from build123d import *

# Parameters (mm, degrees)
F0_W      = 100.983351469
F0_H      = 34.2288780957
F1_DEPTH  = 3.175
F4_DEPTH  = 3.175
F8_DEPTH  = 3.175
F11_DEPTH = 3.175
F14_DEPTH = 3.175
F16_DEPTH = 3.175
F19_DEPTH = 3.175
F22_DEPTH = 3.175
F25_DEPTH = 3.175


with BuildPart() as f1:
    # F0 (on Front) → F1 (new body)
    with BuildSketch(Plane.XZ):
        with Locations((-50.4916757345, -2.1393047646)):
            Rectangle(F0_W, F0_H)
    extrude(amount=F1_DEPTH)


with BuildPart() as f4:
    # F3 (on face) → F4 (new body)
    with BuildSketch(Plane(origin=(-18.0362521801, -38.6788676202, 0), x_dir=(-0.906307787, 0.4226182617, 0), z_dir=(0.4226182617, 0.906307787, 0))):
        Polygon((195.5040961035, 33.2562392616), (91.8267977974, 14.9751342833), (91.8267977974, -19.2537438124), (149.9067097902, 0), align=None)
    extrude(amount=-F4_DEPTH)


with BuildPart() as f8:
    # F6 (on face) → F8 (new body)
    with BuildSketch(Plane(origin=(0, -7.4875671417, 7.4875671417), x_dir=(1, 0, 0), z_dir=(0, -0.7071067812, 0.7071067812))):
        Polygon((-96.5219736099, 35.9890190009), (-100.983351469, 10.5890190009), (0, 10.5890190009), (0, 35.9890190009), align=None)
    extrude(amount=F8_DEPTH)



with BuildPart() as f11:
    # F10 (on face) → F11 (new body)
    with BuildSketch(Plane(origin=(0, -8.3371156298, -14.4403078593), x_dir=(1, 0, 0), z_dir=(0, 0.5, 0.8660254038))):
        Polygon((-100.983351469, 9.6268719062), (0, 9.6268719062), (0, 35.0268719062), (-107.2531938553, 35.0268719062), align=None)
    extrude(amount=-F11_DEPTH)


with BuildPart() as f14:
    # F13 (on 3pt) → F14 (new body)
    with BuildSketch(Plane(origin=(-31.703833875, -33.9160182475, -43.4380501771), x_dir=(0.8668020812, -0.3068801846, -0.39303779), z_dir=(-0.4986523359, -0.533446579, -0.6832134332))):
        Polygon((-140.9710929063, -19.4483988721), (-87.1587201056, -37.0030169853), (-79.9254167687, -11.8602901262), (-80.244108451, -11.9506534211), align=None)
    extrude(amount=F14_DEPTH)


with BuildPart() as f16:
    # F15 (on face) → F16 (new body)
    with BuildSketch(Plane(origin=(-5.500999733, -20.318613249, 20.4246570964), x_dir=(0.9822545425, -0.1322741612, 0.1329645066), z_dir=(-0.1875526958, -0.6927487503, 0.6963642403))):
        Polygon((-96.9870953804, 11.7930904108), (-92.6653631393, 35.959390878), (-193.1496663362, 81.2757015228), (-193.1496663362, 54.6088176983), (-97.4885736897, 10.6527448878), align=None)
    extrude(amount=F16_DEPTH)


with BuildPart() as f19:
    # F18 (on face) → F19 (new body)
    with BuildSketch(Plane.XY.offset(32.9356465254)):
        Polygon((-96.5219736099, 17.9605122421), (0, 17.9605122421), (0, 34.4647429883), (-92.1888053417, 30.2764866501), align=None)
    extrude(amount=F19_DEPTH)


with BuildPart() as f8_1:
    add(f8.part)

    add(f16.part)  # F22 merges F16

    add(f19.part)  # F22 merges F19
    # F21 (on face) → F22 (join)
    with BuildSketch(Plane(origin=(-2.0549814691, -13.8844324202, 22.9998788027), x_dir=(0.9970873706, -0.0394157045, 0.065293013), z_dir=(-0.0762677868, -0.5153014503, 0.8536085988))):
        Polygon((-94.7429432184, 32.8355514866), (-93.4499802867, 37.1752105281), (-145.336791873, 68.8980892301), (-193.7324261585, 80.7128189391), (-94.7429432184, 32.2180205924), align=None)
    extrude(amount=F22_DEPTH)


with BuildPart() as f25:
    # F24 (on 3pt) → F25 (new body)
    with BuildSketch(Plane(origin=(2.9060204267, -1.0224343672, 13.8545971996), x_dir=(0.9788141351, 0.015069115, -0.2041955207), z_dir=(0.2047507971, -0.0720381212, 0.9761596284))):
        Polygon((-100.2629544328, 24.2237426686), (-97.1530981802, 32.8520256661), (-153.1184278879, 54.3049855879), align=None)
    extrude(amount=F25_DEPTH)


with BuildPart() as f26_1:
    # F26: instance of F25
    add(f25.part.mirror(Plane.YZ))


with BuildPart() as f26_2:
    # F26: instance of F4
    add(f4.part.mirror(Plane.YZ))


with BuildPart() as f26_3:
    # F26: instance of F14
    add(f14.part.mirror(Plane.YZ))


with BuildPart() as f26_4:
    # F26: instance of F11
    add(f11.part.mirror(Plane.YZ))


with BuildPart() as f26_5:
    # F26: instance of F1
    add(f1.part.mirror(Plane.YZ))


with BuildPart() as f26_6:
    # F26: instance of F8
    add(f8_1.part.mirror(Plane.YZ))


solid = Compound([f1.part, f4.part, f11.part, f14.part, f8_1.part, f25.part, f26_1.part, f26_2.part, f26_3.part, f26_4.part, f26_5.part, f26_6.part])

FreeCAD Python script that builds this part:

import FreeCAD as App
import Part
import Sketcher
Q = App.Units.Quantity


def add_polygon(sketch, points):
    """Adds a closed chain of lines whose ends are joined by coincident constraints."""
    first, n = sketch.GeometryCount, len(points)
    for a, b in zip(points, points[1:] + points[:1]):
        sketch.addGeometry(Part.LineSegment(App.Vector(*a, 0), App.Vector(*b, 0)), False)
    for i in range(n):
        sketch.addConstraint(Sketcher.Constraint("Coincident", first + i, 2, first + (i + 1) % n, 1))

doc = App.newDocument("Part")
body = doc.addObject("PartDesign::Body", "Body")

# Sketch on XZ plane
sketch1 = doc.addObject("Sketcher::SketchObject", "Sketch")
body.addObject(sketch1)
sketch1.AttachmentSupport = (doc.XZ_Plane, [""])
sketch1.MapMode = "FlatFace"
add_polygon(sketch1, [(-100.983351, 14.975134), (-100.983351, -19.253744), (0, -19.253744), (0, 14.975134)])  # lines 0-3
sketch1.addConstraint([
    Sketcher.Constraint("Vertical", 0),
    Sketcher.Constraint("Horizontal", 1),
    Sketcher.Constraint("Vertical", 2),
    Sketcher.Constraint("Horizontal", 3),
    Sketcher.Constraint("PointOnObject", 1, 2, -2),
    Sketcher.Constraint("DistanceX", 1, 1, 1, 2, Q("100.983351 mm")),
    Sketcher.Constraint("DistanceY", 0, 2, 0, 1, Q("34.228878 mm")),
    Sketcher.Constraint("DistanceY", 0, 2, -1, 1, Q("19.253744 mm")),
])
pad1 = doc.addObject("PartDesign::Pad", "Pad")
body.addObject(pad1)
pad1.Profile = sketch1
pad1.Length = Q("0.125 in")
body2 = doc.addObject("PartDesign::Body", "Body001")

# Sketch on an angled plane
sketch2 = doc.addObject("Sketcher::SketchObject", "Sketch001")
body2.addObject(sketch2)
sketch2.Placement = App.Placement(App.Vector(-18.036252, -38.678868, 0), App.Rotation(App.Vector(-0.906307787, 0.422618262, 0), App.Vector(0, 0, 1), App.Vector(0.422618262, 0.906307787, 0), "ZXY"))
add_polygon(sketch2, [(195.504096, 33.256239), (91.826798, 14.975134), (91.826798, -19.253744), (149.90671, 0)])  # lines 0-3
sketch2.addConstraint([
    Sketcher.Constraint("Vertical", 1),
    Sketcher.Constraint("PointOnObject", 2, 2, -1),
    Sketcher.Constraint("Angle", 0, Q("-170 deg")),
    Sketcher.Constraint("DistanceY", 1, 2, 1, 1, Q("34.228878 mm")),
    Sketcher.Constraint("DistanceX", 0, 2, 3, 2, Q("103.677298 mm")),
    Sketcher.Constraint("DistanceX", -1, 1, 2, 2, Q("149.90671 mm")),
    Sketcher.Constraint("DistanceY", -1, 1, 3, 2, Q("33.256239 mm")),
    Sketcher.Constraint("Distance", 2, Q("61.188094 mm")),
])
pad2 = doc.addObject("PartDesign::Pad", "Pad001")
body2.addObject(pad2)
pad2.Profile = sketch2
pad2.Length = Q("0.125 in")
pad2.Reversed = True
body3 = doc.addObject("PartDesign::Body", "Body002")

# Sketch on an angled plane
sketch3 = doc.addObject("Sketcher::SketchObject", "Sketch002")
body3.addObject(sketch3)
sketch3.Placement = App.Placement(App.Vector(0, -7.487567, 7.487567), App.Rotation(App.Vector(1, 0, 0), App.Vector(0, 0.707106781, 0.707106781), App.Vector(0, -0.707106781, 0.707106781), "ZXY"))
add_polygon(sketch3, [(-96.521974, 35.989019), (-100.983351, 10.589019), (0, 10.589019), (0, 35.989019)])  # lines 0-3
sketch3.addConstraint([
    Sketcher.Constraint("Horizontal", 1),
    Sketcher.Constraint("Vertical", 2),
    Sketcher.Constraint("Horizontal", 3),
    Sketcher.Constraint("PointOnObject", 1, 2, -2),
    Sketcher.Constraint("DistanceY", 2, 1, 2, 2, Q("1 in")),
    Sketcher.Constraint("DistanceX", 1, 1, 1, 2, Q("100.983351 mm")),
    Sketcher.Constraint("DistanceX", 3, 2, 3, 1, Q("96.521974 mm")),
    Sketcher.Constraint("DistanceY", -1, 1, 0, 2, Q("10.589019 mm")),
])
pad3 = doc.addObject("PartDesign::Pad", "Pad002")
body3.addObject(pad3)
pad3.Profile = sketch3
pad3.Length = Q("0.125 in")
body4 = doc.addObject("PartDesign::Body", "Body003")

# Sketch on an angled plane
sketch4 = doc.addObject("Sketcher::SketchObject", "Sketch003")
body4.addObject(sketch4)
sketch4.Placement = App.Placement(App.Vector(0, -8.337116, -14.440308), App.Rotation(App.Vector(1, 0, 0), App.Vector(0, 0.866025404, -0.5), App.Vector(0, 0.5, 0.866025404), "ZXY"))
add_polygon(sketch4, [(-100.983351, 9.626872), (0, 9.626872), (0, 35.026872), (-107.253194, 35.026872)])  # lines 0-3
sketch4.addConstraint([
    Sketcher.Constraint("Horizontal", 0),
    Sketcher.Constraint("Vertical", 1),
    Sketcher.Constraint("Horizontal", 2),
    Sketcher.Constraint("PointOnObject", 0, 2, -2),
    Sketcher.Constraint("DistanceY", 1, 1, 1, 2, Q("1 in")),
    Sketcher.Constraint("DistanceX", 0, 1, 0, 2, Q("100.983351 mm")),
    Sketcher.Constraint("DistanceX", 2, 2, 2, 1, Q("107.253194 mm")),
    Sketcher.Constraint("DistanceY", -1, 1, 0, 2, Q("9.626872 mm")),
])
pad4 = doc.addObject("PartDesign::Pad", "Pad003")
body4.addObject(pad4)
pad4.Profile = sketch4
pad4.Length = Q("0.125 in")
pad4.Reversed = True
body5 = doc.addObject("PartDesign::Body", "Body004")

# Sketch on an angled plane
sketch5 = doc.addObject("Sketcher::SketchObject", "Sketch004")
body5.addObject(sketch5)
sketch5.Placement = App.Placement(App.Vector(-31.703834, -33.916018, -43.43805), App.Rotation(App.Vector(0.866802081, -0.306880185, -0.39303779), App.Vector(0, -0.788200038, 0.615419126), App.Vector(-0.498652336, -0.533446579, -0.683213433), "ZXY"))
add_polygon(sketch5, [(-140.971093, -19.448399), (-87.15872, -37.003017), (-79.925417, -11.86029), (-80.244108, -11.950653)])  # lines 0-3
sketch5.addConstraint([
    Sketcher.Constraint("Angle", 1, Q("73.950018 deg")),
    Sketcher.Constraint("DistanceY", 3, 2, -1, 1, Q("19.448399 mm")),
    Sketcher.Constraint("Distance", 1, Q("26.162519 mm")),
    Sketcher.Constraint("DistanceX", 0, 2, -1, 1, Q("87.15872 mm")),
    Sketcher.Constraint("DistanceY", 1, 2, -1, 1, Q("11.86029 mm")),
    Sketcher.Constraint("DistanceX", 2, 2, -1, 1, Q("80.244108 mm")),
    Sketcher.Constraint("Distance", 0, Q("56.603322 mm")),
    Sketcher.Constraint("Distance", 2, Q("0.331255 mm")),
])
pad5 = doc.addObject("PartDesign::Pad", "Pad004")
body5.addObject(pad5)
pad5.Profile = sketch5
pad5.Length = Q("0.125 in")
body6 = doc.addObject("PartDesign::Body", "Body005")

# Sketch on an angled plane
sketch6 = doc.addObject("Sketcher::SketchObject", "Sketch005")
body6.addObject(sketch6)
sketch6.Placement = App.Placement(App.Vector(-5.501, -20.318613, 20.424657), App.Rotation(App.Vector(0.982254543, -0.132274161, 0.132964507), App.Vector(0, 0.70894479, 0.705263982), App.Vector(-0.187552696, -0.69274875, 0.69636424), "ZXY"))
add_polygon(sketch6, [(-96.987095, 11.79309), (-92.665363, 35.959391), (-193.149667, 81.275702), (-193.149667, 54.608818), (-97.488574, 10.652745)])  # lines 0-4
sketch6.addConstraint([
    Sketcher.Constraint("Vertical", 2),
    Sketcher.Constraint("DistanceY", -1, 1, 1, 2, Q("81.275702 mm")),
    Sketcher.Constraint("DistanceY", 4, 2, 0, 2, Q("24.1663 mm")),
    Sketcher.Constraint("Distance", 4, Q("1.24574 mm")),
    Sketcher.Constraint("DistanceY", 2, 2, 2, 1, Q("26.666884 mm")),
    Sketcher.Constraint("DistanceY", -1, 1, 0, 2, Q("35.959391 mm")),
    Sketcher.Constraint("DistanceX", 3, 2, 0, 2, Q("4.823211 mm")),
    Sketcher.Constraint("DistanceX", 3, 2, 4, 2, Q("0.501478 mm")),
    Sketcher.Constraint("DistanceX", 2, 2, 4, 2, Q("96.162571 mm")),
    Sketcher.Constraint("DistanceX", 0, 2, -1, 1, Q("92.665363 mm")),
])
pad6 = doc.addObject("PartDesign::Pad", "Pad005")
body6.addObject(pad6)
pad6.Profile = sketch6
pad6.Length = Q("0.125 in")
body7 = doc.addObject("PartDesign::Body", "Body006")

# Sketch on XY plane
sketch7 = doc.addObject("Sketcher::SketchObject", "Sketch006")
body7.addObject(sketch7)
sketch7.AttachmentSupport = (doc.getObject("XY_Plane006"), [""])
sketch7.MapMode = "FlatFace"
sketch7.AttachmentOffset = App.Placement(App.Vector(0, 0, 32.935647), App.Rotation())
add_polygon(sketch7, [(-96.521974, 17.960512), (0, 17.960512), (0, 34.464743), (-92.188805, 30.276487)])  # lines 0-3
sketch7.addConstraint([
    Sketcher.Constraint("Horizontal", 0),
    Sketcher.Constraint("Vertical", 1),
    Sketcher.Constraint("PointOnObject", 0, 2, -2),
    Sketcher.Constraint("DistanceY", 1, 1, 1, 2, Q("16.504231 mm")),
    Sketcher.Constraint("DistanceX", 0, 1, 0, 2, Q("96.521974 mm")),
    Sketcher.Constraint("DistanceX", 3, 2, 2, 2, Q("4.333168 mm")),
    Sketcher.Constraint("Distance", 2, Q("92.283895 mm")),
    Sketcher.Constraint("DistanceY", -1, 1, 0, 2, Q("17.960512 mm")),
])
pad7 = doc.addObject("PartDesign::Pad", "Pad006")
body7.addObject(pad7)
pad7.Profile = sketch7
pad7.Length = Q("0.125 in")
body3.AllowCompound = True
doc.recompute()

boolean = doc.addObject("PartDesign::Boolean", "Boolean")
body3.addObject(boolean)
boolean.Type = "Fuse"
boolean.addObjects([body6])
doc.recompute()

boolean2 = doc.addObject("PartDesign::Boolean", "Boolean001")
body3.addObject(boolean2)
boolean2.Type = "Fuse"
boolean2.addObjects([body7])

# Sketch on an angled plane
sketch8 = doc.addObject("Sketcher::SketchObject", "Sketch007")
body3.addObject(sketch8)
sketch8.Placement = App.Placement(App.Vector(-2.054981, -13.884432, 22.999879), App.Rotation(App.Vector(0.997087371, -0.039415704, 0.065293013), App.Vector(0, 0.856102107, 0.516806717), App.Vector(-0.076267787, -0.51530145, 0.853608599), "ZXY"))
add_polygon(sketch8, [(-94.742943, 32.835552), (-93.44998, 37.175211), (-145.336792, 68.898089), (-193.732426, 80.712819), (-94.742943, 32.218021)])  # lines 0-4
sketch8.addConstraint([
    Sketcher.Constraint("Vertical", 4),
    Sketcher.Constraint("DistanceY", 4, 1, 4, 2, Q("0.617531 mm")),
    Sketcher.Constraint("DistanceY", 3, 2, 2, 2, Q("48.494798 mm")),
    Sketcher.Constraint("Distance", 1, Q("60.81597 mm")),
    Sketcher.Constraint("DistanceX", 0, 2, -1, 1, Q("93.44998 mm")),
    Sketcher.Constraint("DistanceY", -1, 1, 0, 2, Q("37.175211 mm")),
    Sketcher.Constraint("DistanceX", 1, 2, -1, 1, Q("145.336792 mm")),
    Sketcher.Constraint("DistanceY", -1, 1, 2, 2, Q("80.712819 mm")),
    Sketcher.Constraint("DistanceX", 1, 2, 3, 2, Q("50.593849 mm")),
    Sketcher.Constraint("Distance", 2, Q("49.816917 mm")),
])
pad8 = doc.addObject("PartDesign::Pad", "Pad007")
body3.addObject(pad8)
pad8.Profile = sketch8
pad8.Length = Q("0.125 in")
body8 = doc.addObject("PartDesign::Body", "Body007")

# Sketch on an angled plane
sketch9 = doc.addObject("Sketcher::SketchObject", "Sketch008")
body8.addObject(sketch9)
sketch9.Placement = App.Placement(App.Vector(2.90602, -1.022434, 13.854597), App.Rotation(App.Vector(0.978814135, 0.015069115, -0.204195521), App.Vector(0, 0.997288038, 0.073597344), App.Vector(0.204750797, -0.072038121, 0.976159628), "ZXY"))
add_polygon(sketch9, [(-100.262954, 24.223743), (-97.153098, 32.852026), (-153.118428, 54.304986)])  # lines 0-2
sketch9.addConstraint([
    Sketcher.Constraint("DistanceX", 0, 2, -1, 1, Q("97.153098 mm")),
    Sketcher.Constraint("Distance", 2, Q("60.81597 mm")),
    Sketcher.Constraint("DistanceX", 1, 2, 0, 2, Q("55.96533 mm")),
    Sketcher.Constraint("DistanceY", 0, 2, 1, 2, Q("21.45296 mm")),
    Sketcher.Constraint("Distance", 0, Q("9.171612 mm")),
    Sketcher.Constraint("DistanceY", -1, 1, 0, 2, Q("32.852026 mm")),
])
pad9 = doc.addObject("PartDesign::Pad", "Pad008")
body8.addObject(pad9)
pad9.Profile = sketch9
pad9.Length = Q("0.125 in")
body9 = doc.addObject("PartDesign::Body", "Body008")
doc.recompute()

mirroring = doc.addObject("Part::Mirroring", "Mirroring")
mirroring.Source = body8
mirroring.Base = App.Vector(0, 0, 0)
mirroring.Normal = App.Vector(1, 0, 0)
body9.BaseFeature = mirroring
doc.recompute()
body10 = doc.addObject("PartDesign::Body", "Body009")
doc.recompute()

mirroring2 = doc.addObject("Part::Mirroring", "Mirroring001")
mirroring2.Source = body2
mirroring2.Base = App.Vector(0, 0, 0)
mirroring2.Normal = App.Vector(1, 0, 0)
body10.BaseFeature = mirroring2
doc.recompute()
body11 = doc.addObject("PartDesign::Body", "Body010")
doc.recompute()

mirroring3 = doc.addObject("Part::Mirroring", "Mirroring002")
mirroring3.Source = body5
mirroring3.Base = App.Vector(0, 0, 0)
mirroring3.Normal = App.Vector(1, 0, 0)
body11.BaseFeature = mirroring3
doc.recompute()
body12 = doc.addObject("PartDesign::Body", "Body011")
doc.recompute()

mirroring4 = doc.addObject("Part::Mirroring", "Mirroring003")
mirroring4.Source = body4
mirroring4.Base = App.Vector(0, 0, 0)
mirroring4.Normal = App.Vector(1, 0, 0)
body12.BaseFeature = mirroring4
doc.recompute()
body13 = doc.addObject("PartDesign::Body", "Body012")
doc.recompute()

mirroring5 = doc.addObject("Part::Mirroring", "Mirroring004")
mirroring5.Source = body
mirroring5.Base = App.Vector(0, 0, 0)
mirroring5.Normal = App.Vector(1, 0, 0)
body13.BaseFeature = mirroring5
doc.recompute()
body14 = doc.addObject("PartDesign::Body", "Body013")
body14.AllowCompound = True
doc.recompute()

mirroring6 = doc.addObject("Part::Mirroring", "Mirroring005")
mirroring6.Source = body3
mirroring6.Base = App.Vector(0, 0, 0)
mirroring6.Normal = App.Vector(1, 0, 0)
body14.BaseFeature = mirroring6
doc.recompute()
mirroring.Visibility = False
mirroring2.Visibility = False
mirroring3.Visibility = False
mirroring4.Visibility = False
mirroring5.Visibility = False
mirroring6.Visibility = False

doc.recompute()
